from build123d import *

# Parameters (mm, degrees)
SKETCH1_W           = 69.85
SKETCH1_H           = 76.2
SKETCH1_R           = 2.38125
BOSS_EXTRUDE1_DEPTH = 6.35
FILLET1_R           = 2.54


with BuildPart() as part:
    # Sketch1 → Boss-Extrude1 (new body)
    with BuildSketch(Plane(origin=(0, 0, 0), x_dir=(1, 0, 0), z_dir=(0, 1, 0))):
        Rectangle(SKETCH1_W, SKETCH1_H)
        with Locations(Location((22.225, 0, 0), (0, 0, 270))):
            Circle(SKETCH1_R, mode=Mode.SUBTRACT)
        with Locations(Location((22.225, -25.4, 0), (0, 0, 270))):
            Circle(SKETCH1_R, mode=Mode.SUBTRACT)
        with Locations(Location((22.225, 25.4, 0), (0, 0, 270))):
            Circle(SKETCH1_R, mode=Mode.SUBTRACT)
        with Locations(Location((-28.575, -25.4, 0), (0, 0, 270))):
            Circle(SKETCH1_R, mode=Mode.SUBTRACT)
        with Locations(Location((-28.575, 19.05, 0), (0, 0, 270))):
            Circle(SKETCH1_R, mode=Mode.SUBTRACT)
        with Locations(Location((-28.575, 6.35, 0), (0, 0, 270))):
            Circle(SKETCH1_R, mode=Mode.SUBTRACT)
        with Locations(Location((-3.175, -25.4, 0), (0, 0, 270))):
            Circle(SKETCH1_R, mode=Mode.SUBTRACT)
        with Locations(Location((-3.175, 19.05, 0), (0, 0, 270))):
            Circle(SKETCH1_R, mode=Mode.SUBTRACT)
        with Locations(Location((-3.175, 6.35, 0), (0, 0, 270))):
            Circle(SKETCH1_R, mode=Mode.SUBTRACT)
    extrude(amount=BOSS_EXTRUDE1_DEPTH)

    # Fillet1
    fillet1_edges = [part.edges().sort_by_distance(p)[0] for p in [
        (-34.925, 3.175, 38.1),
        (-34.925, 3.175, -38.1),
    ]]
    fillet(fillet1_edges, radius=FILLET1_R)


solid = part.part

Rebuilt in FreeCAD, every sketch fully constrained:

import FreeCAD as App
import Part
import Sketcher
from FreeCAD import Vector
Q = App.Units.Quantity


def edges_at(feature, points):
    """Names of the edges that pass closest to the given points."""
    edges = feature.Shape.Edges
    near = lambda p: min(range(len(edges)), key=lambda i: edges[i].distToShape(Part.Vertex(*p))[0])
    return sorted({f"Edge{near(p) + 1}" for p in points})


def add_polygon(sketch, points):
    """Adds a closed chain of lines whose ends are joined by coincident constraints."""
    first, n = sketch.GeometryCount, len(points)
    for a, b in zip(points, points[1:] + points[:1]):
        sketch.addGeometry(Part.LineSegment(App.Vector(*a, 0), App.Vector(*b, 0)), False)
    for i in range(n):
        sketch.addConstraint(Sketcher.Constraint("Coincident", first + i, 2, first + (i + 1) % n, 1))

doc = App.newDocument("Part")
params = doc.addObject("Spreadsheet::Sheet", "Params")
for row, (alias, value) in enumerate([
    ("sketch1_height", "3 in"),
    ("sketch1_diameter", "0.1875 in"),
    ("sketch1_width", "2.75 in"),
    ("pad1_length", "0.25 in"),
    ("fillet_radius", "0.1 in"),
], start=1):
    params.set(f"A{row}", alias)
    params.set(f"B{row}", "=" + value)
    params.setAlias(f"B{row}", alias)

body = doc.addObject("PartDesign::Body", "Body")

# Sketch on XZ plane
sketch1 = body.newObject("Sketcher::SketchObject", "Sketch")
sketch1.AttachmentSupport = (doc.getObject("XZ_Plane"), [""])
sketch1.MapMode = "FlatFace"
add_polygon(sketch1, [(-34.9, -38.1), (-34.9, 38.1), (34.9, 38.1), (34.9, -38.1)])  # lines 0-3
sketch1.addGeometry(Part.Circle(Vector(-28.6, 25.4, 0), Vector(0, 0, 1), 2.4), False)  # 4
sketch1.addGeometry(Part.Circle(Vector(-3.2, 25.4, 0), Vector(0, 0, 1), 2.4), False)  # 5
sketch1.addGeometry(Part.Circle(Vector(22.2, 25.4, 0), Vector(0, 0, 1), 2.4), False)  # 6
sketch1.addGeometry(Part.Circle(Vector(-28.6, -6.3, 0), Vector(0, 0, 1), 2.4), False)  # 7
sketch1.addGeometry(Part.Circle(Vector(-28.6, -19.1, 0), Vector(0, 0, 1), 2.4), False)  # 8
sketch1.addGeometry(Part.Circle(Vector(-3.2, -6.3, 0), Vector(0, 0, 1), 2.4), False)  # 9
sketch1.addGeometry(Part.Circle(Vector(22.2, 0, 0), Vector(0, 0, 1), 2.4), False)  # 10
sketch1.addGeometry(Part.Circle(Vector(-3.2, -19.1, 0), Vector(0, 0, 1), 2.4), False)  # 11
sketch1.addGeometry(Part.Circle(Vector(22.2, -25.4, 0), Vector(0, 0, 1), 2.4), False)  # 12
sketch1.addConstraint([
    Sketcher.Constraint("Vertical", 0),
    Sketcher.Constraint("Horizontal", 1),
    Sketcher.Constraint("Vertical", 2),
    Sketcher.Constraint("Horizontal", 3),
    Sketcher.Constraint("Equal", 4, 5),
    Sketcher.Constraint("Equal", 5, 6),
    Sketcher.Constraint("Equal", 6, 7),
    Sketcher.Constraint("Equal", 7, 8),
    Sketcher.Constraint("Equal", 8, 9),
    Sketcher.Constraint("Equal", 9, 10),
    Sketcher.Constraint("Equal", 10, 11),
    Sketcher.Constraint("Equal", 11, 12),
    Sketcher.Constraint("Symmetric", 0, 2, 2, 2, -1, 1),
    Sketcher.Constraint("Symmetric", 6, 3, 12, 3, -1),
    Sketcher.Constraint("PointOnObject", 10, 3, -1),
    Sketcher.Constraint("Horizontal", 4, 3, 5, 3),
    Sketcher.Constraint("Horizontal", 5, 3, 6, 3),
    Sketcher.Constraint("Horizontal", 7, 3, 9, 3),
    Sketcher.Constraint("Horizontal", 8, 3, 11, 3),
    Sketcher.Constraint("Vertical", 4, 3, 7, 3),
    Sketcher.Constraint("Vertical", 7, 3, 8, 3),
    Sketcher.Constraint("Vertical", 5, 3, 9, 3),
    Sketcher.Constraint("Vertical", 6, 3, 10, 3),
    Sketcher.Constraint("Vertical", 9, 3, 11, 3),
    Sketcher.Constraint("DistanceY", 0, 1, 0, 2, Q("3 in")),
    Sketcher.Constraint("Diameter", 4, Q("0.1875 in")),
    Sketcher.Constraint("DistanceY", -1, 1, 4, 3, Q("1 in")),
    Sketcher.Constraint("DistanceX", 4, 3, 5, 3, Q("1 in")),
    Sketcher.Constraint("DistanceX", 5, 3, 6, 3, Q("1 in")),
    Sketcher.Constraint("DistanceX", 1, 1, 1, 2, Q("2.75 in")),
    Sketcher.Constraint("DistanceY", 8, 3, 7, 3, Q("0.5 in")),
    Sketcher.Constraint("DistanceX", 6, 3, 1, 2, Q("0.5 in")),
    Sketcher.Constraint("DistanceY", 7, 3, -1, 1, Q("0.25 in")),
])
sketch1.setExpression("Constraints[28]", "Params.sketch1_height")
sketch1.setExpression("Constraints[29]", "Params.sketch1_diameter")
sketch1.setExpression("Constraints[33]", "Params.sketch1_width")
pad1 = body.newObject("PartDesign::Pad", "Pad")
pad1.Profile = sketch1
pad1.setExpression("Length", "Params.pad1_length")
pad1.Reversed = True
doc.recompute()

fillet = body.newObject("PartDesign::Fillet", "Fillet")
fillet.Base = (pad1, edges_at(pad1, [(-34.925, 3.175, 38.1), (-34.925, 3.175, -38.1)]))
fillet.setExpression("Radius", "Params.fillet_radius")

doc.recompute()
